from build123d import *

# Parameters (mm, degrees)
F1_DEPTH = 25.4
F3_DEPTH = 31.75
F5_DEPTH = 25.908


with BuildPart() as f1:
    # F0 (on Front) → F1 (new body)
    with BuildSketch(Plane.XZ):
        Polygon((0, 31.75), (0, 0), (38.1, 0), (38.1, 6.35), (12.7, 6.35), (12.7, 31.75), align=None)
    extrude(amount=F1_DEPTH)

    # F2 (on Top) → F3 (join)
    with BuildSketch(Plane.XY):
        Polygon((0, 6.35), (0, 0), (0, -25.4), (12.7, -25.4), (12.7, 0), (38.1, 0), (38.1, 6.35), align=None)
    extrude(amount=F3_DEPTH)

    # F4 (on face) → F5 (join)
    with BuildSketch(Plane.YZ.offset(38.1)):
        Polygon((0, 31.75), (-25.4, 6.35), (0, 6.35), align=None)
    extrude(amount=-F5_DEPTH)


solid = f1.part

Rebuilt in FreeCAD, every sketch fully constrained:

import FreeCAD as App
import Part
import Sketcher
from FreeCAD import Vector
Q = App.Units.Quantity

doc = App.newDocument("Part")
params = doc.addObject("Spreadsheet::Sheet", "Params")
for row, (alias, value) in enumerate([
    ("sketch1_width", "1 in"),
    ("sketch1_width2", "1.5 in"),
    ("sketch1_height", "1.25 in"),
    ("pad1_length", "1 in"),
    ("sketch2_width", "1 in"),
    ("sketch2_width2", "0.5 in"),
    ("sketch2_height", "1.25 in"),
    ("pad2_length", "1.25 in"),
    ("sketch3_width", "1 in"),
    ("pad3_length", "1.02 in"),
], start=1):
    params.set(f"A{row}", alias)
    params.set(f"B{row}", "=" + value)
    params.setAlias(f"B{row}", alias)

body = doc.addObject("PartDesign::Body", "Body")

# Sketch on XZ plane
sketch1 = body.newObject("Sketcher::SketchObject", "Sketch")
sketch1.AttachmentSupport = (doc.getObject("XZ_Plane"), [""])
sketch1.MapMode = "FlatFace"
sketch1.addGeometry([
    Part.LineSegment(Vector(0, 31.75, 0), Vector(0, 0, 0)),  # 0
    Part.LineSegment(Vector(0, 0, 0), Vector(38.1, 0, 0)),  # 1
    Part.LineSegment(Vector(38.1, 0, 0), Vector(38.1, 6.35, 0)),  # 2
    Part.LineSegment(Vector(38.1, 6.35, 0), Vector(12.7, 6.35, 0)),  # 3
    Part.LineSegment(Vector(12.7, 6.35, 0), Vector(12.7, 31.75, 0)),  # 4
    Part.LineSegment(Vector(12.7, 31.75, 0), Vector(0, 31.75, 0)),  # 5
], False)
sketch1.addConstraint([
    Sketcher.Constraint("Coincident", 0, 2, 1, 1),
    Sketcher.Constraint("Coincident", 1, 2, 2, 1),
    Sketcher.Constraint("Coincident", 2, 2, 3, 1),
    Sketcher.Constraint("Coincident", 3, 2, 4, 1),
    Sketcher.Constraint("Coincident", 4, 2, 5, 1),
    Sketcher.Constraint("Coincident", 5, 2, 0, 1),
    Sketcher.Constraint("Vertical", 0),
    Sketcher.Constraint("Horizontal", 1),
    Sketcher.Constraint("Vertical", 2),
    Sketcher.Constraint("Horizontal", 3),
    Sketcher.Constraint("Vertical", 4),
    Sketcher.Constraint("Horizontal", 5),
    Sketcher.Constraint("Coincident", 0, 2, -1, 1),
    Sketcher.Constraint("Equal", 3, 4),
    Sketcher.Constraint("DistanceX", 3, 2, 3, 1, Q("1 in")),
    Sketcher.Constraint("DistanceX", 1, 1, 1, 2, Q("1.5 in")),
    Sketcher.Constraint("DistanceY", 0, 2, 0, 1, Q("1.25 in")),
])
sketch1.setExpression("Constraints[14]", "Params.sketch1_width")
sketch1.setExpression("Constraints[15]", "Params.sketch1_width2")
sketch1.setExpression("Constraints[16]", "Params.sketch1_height")
pad1 = body.newObject("PartDesign::Pad", "Pad")
pad1.Profile = sketch1
pad1.setExpression("Length", "Params.pad1_length")

# Sketch on XY plane
sketch2 = body.newObject("Sketcher::SketchObject", "Sketch001")
sketch2.AttachmentSupport = (doc.getObject("XY_Plane"), [""])
sketch2.MapMode = "FlatFace"
sketch2.addGeometry([
    Part.LineSegment(Vector(0, 6.35, 0), Vector(0, -25.4, 0)),  # 0
    Part.LineSegment(Vector(0, -25.4, 0), Vector(12.7, -25.4, 0)),  # 1
    Part.LineSegment(Vector(12.7, -25.4, 0), Vector(12.7, 0, 0)),  # 2
    Part.LineSegment(Vector(12.7, 0, 0), Vector(38.1, 0, 0)),  # 3
    Part.LineSegment(Vector(38.1, 0, 0), Vector(38.1, 6.35, 0)),  # 4
    Part.LineSegment(Vector(38.1, 6.35, 0), Vector(0, 6.35, 0)),  # 5
], False)
sketch2.addConstraint([
    Sketcher.Constraint("Coincident", 0, 2, 1, 1),
    Sketcher.Constraint("Coincident", 1, 2, 2, 1),
    Sketcher.Constraint("Coincident", 2, 2, 3, 1),
    Sketcher.Constraint("Coincident", 3, 2, 4, 1),
    Sketcher.Constraint("Coincident", 4, 2, 5, 1),
    Sketcher.Constraint("Coincident", 5, 2, 0, 1),
    Sketcher.Constraint("Vertical", 0),
    Sketcher.Constraint("Horizontal", 1),
    Sketcher.Constraint("Vertical", 2),
    Sketcher.Constraint("Horizontal", 3),
    Sketcher.Constraint("Vertical", 4),
    Sketcher.Constraint("Horizontal", 5),
    Sketcher.Constraint("PointOnObject", 0, 2, -2),
    Sketcher.Constraint("PointOnObject", 2, 2, -1),
    Sketcher.Constraint("Equal", 3, 2),
    Sketcher.Constraint("DistanceX", 3, 1, 3, 2, Q("1 in")),
    Sketcher.Constraint("DistanceX", 1, 1, 1, 2, Q("0.5 in")),
    Sketcher.Constraint("DistanceY", 0, 2, 0, 1, Q("1.25 in")),
])
sketch2.setExpression("Constraints[15]", "Params.sketch2_width")
sketch2.setExpression("Constraints[16]", "Params.sketch2_width2")
sketch2.setExpression("Constraints[17]", "Params.sketch2_height")
pad2 = body.newObject("PartDesign::Pad", "Pad001")
pad2.Profile = sketch2
pad2.setExpression("Length", "Params.pad2_length")

# Sketch on YZ plane
sketch3 = body.newObject("Sketcher::SketchObject", "Sketch002")
sketch3.AttachmentSupport = (doc.getObject("YZ_Plane"), [""])
sketch3.MapMode = "FlatFace"
sketch3.AttachmentOffset = App.Placement(Vector(0, 0, 1.5 * 25.4), App.Rotation())
sketch3.addGeometry([
    Part.LineSegment(Vector(0, 31.75, 0), Vector(-25.4, 6.35, 0)),
    Part.LineSegment(Vector(-25.4, 6.35, 0), Vector(0, 6.35, 0)),
    Part.LineSegment(Vector(0, 6.35, 0), Vector(0, 31.75, 0)),
], False)
sketch3.addConstraint([
    Sketcher.Constraint("Coincident", 0, 2, 1, 1),
    Sketcher.Constraint("Coincident", 1, 2, 2, 1),
    Sketcher.Constraint("Coincident", 2, 2, 0, 1),
    Sketcher.Constraint("Horizontal", 1),
    Sketcher.Constraint("Vertical", 2),
    Sketcher.Constraint("PointOnObject", 1, 2, -2),
    Sketcher.Constraint("Equal", 1, 2),
    Sketcher.Constraint("DistanceX", 1, 1, 1, 2, Q("1 in")),
    Sketcher.Constraint("DistanceY", -1, 1, 0, 2, Q("0.25 in")),
])
sketch3.setExpression("Constraints[7]", "Params.sketch3_width")
pad3 = body.newObject("PartDesign::Pad", "Pad002")
pad3.Profile = sketch3
pad3.setExpression("Length", "Params.pad3_length")
pad3.Reversed = True

doc.recompute()
